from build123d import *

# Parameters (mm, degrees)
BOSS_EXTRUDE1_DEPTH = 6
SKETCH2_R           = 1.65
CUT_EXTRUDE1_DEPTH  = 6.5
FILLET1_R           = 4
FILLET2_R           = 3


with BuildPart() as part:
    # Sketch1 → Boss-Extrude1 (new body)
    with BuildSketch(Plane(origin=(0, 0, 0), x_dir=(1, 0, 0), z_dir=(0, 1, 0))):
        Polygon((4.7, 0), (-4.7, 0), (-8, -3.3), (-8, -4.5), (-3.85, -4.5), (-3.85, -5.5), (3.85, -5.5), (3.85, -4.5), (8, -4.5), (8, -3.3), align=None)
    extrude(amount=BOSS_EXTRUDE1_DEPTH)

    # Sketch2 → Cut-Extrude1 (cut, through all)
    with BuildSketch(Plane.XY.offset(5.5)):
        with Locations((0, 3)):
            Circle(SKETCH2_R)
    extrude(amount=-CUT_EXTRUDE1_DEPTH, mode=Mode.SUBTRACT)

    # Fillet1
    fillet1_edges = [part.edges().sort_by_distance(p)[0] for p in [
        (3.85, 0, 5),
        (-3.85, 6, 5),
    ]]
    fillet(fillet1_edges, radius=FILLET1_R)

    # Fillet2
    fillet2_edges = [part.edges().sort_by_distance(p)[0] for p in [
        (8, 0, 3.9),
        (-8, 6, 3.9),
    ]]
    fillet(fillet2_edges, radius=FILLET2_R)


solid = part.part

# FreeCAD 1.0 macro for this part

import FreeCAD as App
import Part
import Sketcher
Q = App.Units.Quantity


def edges_at(feature, points):
    """Names of the edges that pass closest to the given points."""
    edges = feature.Shape.Edges
    near = lambda p: min(range(len(edges)), key=lambda i: edges[i].distToShape(Part.Vertex(*p))[0])
    return sorted({f"Edge{near(p) + 1}" for p in points})

doc = App.newDocument("Part")
body = doc.addObject("PartDesign::Body", "Body")

# Sketch on XZ plane
sketch1 = body.newObject("Sketcher::SketchObject", "Sketch")
sketch1.AttachmentSupport = (doc.getObject("XZ_Plane"), [""])
sketch1.MapMode = "FlatFace"
sketch1.addGeometry([
    Part.LineSegment(App.Vector(4.7, 0, 0), App.Vector(-4.7, 0, 0)),  # 0
    Part.LineSegment(App.Vector(-4.7, 0, 0), App.Vector(-8, 3.3, 0)),  # 1
    Part.LineSegment(App.Vector(-8, 3.3, 0), App.Vector(-8, 4.5, 0)),  # 2
    Part.LineSegment(App.Vector(-8, 4.5, 0), App.Vector(-3.85, 4.5, 0)),  # 3
    Part.LineSegment(App.Vector(-3.85, 4.5, 0), App.Vector(-3.85, 5.5, 0)),  # 4
    Part.LineSegment(App.Vector(-3.85, 5.5, 0), App.Vector(3.85, 5.5, 0)),  # 5
    Part.LineSegment(App.Vector(3.85, 5.5, 0), App.Vector(3.85, 4.5, 0)),  # 6
    Part.LineSegment(App.Vector(3.85, 4.5, 0), App.Vector(8, 4.5, 0)),  # 7
    Part.LineSegment(App.Vector(8, 4.5, 0), App.Vector(8, 3.3, 0)),  # 8
    Part.LineSegment(App.Vector(8, 3.3, 0), App.Vector(4.7, 0, 0)),  # 9
], False)
sketch1.addConstraint([
    Sketcher.Constraint("Coincident", 0, 2, 1, 1),
    Sketcher.Constraint("Coincident", 1, 2, 2, 1),
    Sketcher.Constraint("Coincident", 2, 2, 3, 1),
    Sketcher.Constraint("Coincident", 3, 2, 4, 1),
    Sketcher.Constraint("Coincident", 4, 2, 5, 1),
    Sketcher.Constraint("Coincident", 5, 2, 6, 1),
    Sketcher.Constraint("Coincident", 6, 2, 7, 1),
    Sketcher.Constraint("Coincident", 7, 2, 8, 1),
    Sketcher.Constraint("Coincident", 8, 2, 9, 1),
    Sketcher.Constraint("Coincident", 9, 2, 0, 1),
    Sketcher.Constraint("Horizontal", 0),
    Sketcher.Constraint("Vertical", 2),
    Sketcher.Constraint("Horizontal", 3),
    Sketcher.Constraint("Vertical", 4),
    Sketcher.Constraint("Horizontal", 5),
    Sketcher.Constraint("Vertical", 6),
    Sketcher.Constraint("Horizontal", 7),
    Sketcher.Constraint("Vertical", 8),
    Sketcher.Constraint("Symmetric", 0, 2, 9, 2, -1, 1),
    Sketcher.Constraint("Symmetric", 3, 2, 6, 2, -2),
    Sketcher.Constraint("Symmetric", 1, 2, 8, 2, -2),
    Sketcher.Constraint("Perpendicular", 1, 9),
    Sketcher.Constraint("DistanceY", 4, 1, 4, 2, Q("1 mm")),
    Sketcher.Constraint("DistanceX", 0, 2, 0, 1, Q("9.4 mm")),
    Sketcher.Constraint("DistanceX", 5, 1, 5, 2, Q("7.7 mm")),
    Sketcher.Constraint("DistanceY", 2, 1, 2, 2, Q("1.2 mm")),
    Sketcher.Constraint("DistanceX", 1, 2, -1, 1, Q("8 mm")),
])
pad1 = body.newObject("PartDesign::Pad", "Pad")
pad1.Profile = sketch1
pad1.Length = 6
pad1.Reversed = True

# Sketch on XY plane
sketch2 = body.newObject("Sketcher::SketchObject", "Sketch001")
sketch2.AttachmentSupport = (doc.getObject("XY_Plane"), [""])
sketch2.MapMode = "FlatFace"
sketch2.AttachmentOffset = App.Placement(App.Vector(0, 0, 5.5), App.Rotation())
sketch2.addGeometry(Part.Circle(App.Vector(0, 3, 0), App.Vector(0, 0, 1), 1.65), False)
sketch2.addConstraint([
    Sketcher.Constraint("PointOnObject", 0, 3, -2),
    Sketcher.Constraint("Diameter", 0, Q("3.3 mm")),
    Sketcher.Constraint("DistanceY", -1, 1, 0, 3, Q("3 mm")),
])
pocket1 = body.newObject("PartDesign::Pocket", "Pocket")
pocket1.Profile = sketch2
pocket1.Type = "ThroughAll"
doc.recompute()

fillet = body.newObject("PartDesign::Fillet", "Fillet")
fillet.Base = (pocket1, edges_at(pocket1, [(3.85, 0, 5), (-3.85, 6, 5)]))
fillet.Radius = 4
doc.recompute()

fillet2 = body.newObject("PartDesign::Fillet", "Fillet001")
fillet2.Base = (fillet, edges_at(fillet, [(8, 0, 3.9), (-8, 6, 3.9)]))
fillet2.Radius = 3

doc.recompute()
